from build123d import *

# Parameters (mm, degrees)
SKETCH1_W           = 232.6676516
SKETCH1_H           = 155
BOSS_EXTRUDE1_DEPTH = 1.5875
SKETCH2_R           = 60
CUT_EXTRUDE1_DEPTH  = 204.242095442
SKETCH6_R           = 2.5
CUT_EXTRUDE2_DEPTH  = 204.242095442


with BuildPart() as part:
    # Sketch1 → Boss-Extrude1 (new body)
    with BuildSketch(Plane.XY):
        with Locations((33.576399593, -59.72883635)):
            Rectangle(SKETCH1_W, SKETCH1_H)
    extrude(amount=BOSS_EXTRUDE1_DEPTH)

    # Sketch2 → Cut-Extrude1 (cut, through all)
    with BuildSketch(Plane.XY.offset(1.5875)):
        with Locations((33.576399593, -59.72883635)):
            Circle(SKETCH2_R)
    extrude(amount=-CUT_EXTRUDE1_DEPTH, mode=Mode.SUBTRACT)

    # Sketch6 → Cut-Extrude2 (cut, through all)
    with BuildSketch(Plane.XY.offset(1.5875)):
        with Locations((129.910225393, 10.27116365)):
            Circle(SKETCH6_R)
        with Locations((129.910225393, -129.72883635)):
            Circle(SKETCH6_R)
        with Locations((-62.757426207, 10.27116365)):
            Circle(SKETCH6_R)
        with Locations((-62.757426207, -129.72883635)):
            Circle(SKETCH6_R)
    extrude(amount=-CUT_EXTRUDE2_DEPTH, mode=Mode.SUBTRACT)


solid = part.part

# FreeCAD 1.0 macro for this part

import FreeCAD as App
import Part
import Sketcher
from FreeCAD import Vector

doc = App.newDocument("Part")
params = doc.addObject("Spreadsheet::Sheet", "Params")
for row, (alias, value) in enumerate([
    ("sketch1_height", "155 mm"),
    ("pad1_length", "1.5875 mm"),
    ("sketch2_diameter", "120 mm"),
    ("sketch3_diameter", "5 mm"),
], start=1):
    params.set(f"A{row}", alias)
    params.set(f"B{row}", "=" + value)
    params.setAlias(f"B{row}", alias)

body = doc.addObject("PartDesign::Body", "Body")

sketch1 = body.newObject("Sketcher::SketchObject", "Sketch")
sketch1.AttachmentSupport = (doc.getObject("XY_Plane"), [""])
sketch1.MapMode = "FlatFace"
sketch1.addGeometry(Part.LineSegment(Vector(-83, 18, 0), Vector(-83, -137, 0)), False)
sketch1.addGeometry(Part.LineSegment(Vector(-83, -137, 0), Vector(150, -137, 0)), False)
sketch1.addGeometry(Part.LineSegment(Vector(150, -137, 0), Vector(150, 18, 0)), False)
sketch1.addGeometry(Part.LineSegment(Vector(150, 18, 0), Vector(-83, 18, 0)), False)
sketch1.addConstraint(Sketcher.Constraint("Coincident", 0, 2, 1, 1))
sketch1.addConstraint(Sketcher.Constraint("Coincident", 1, 2, 2, 1))
sketch1.addConstraint(Sketcher.Constraint("Coincident", 2, 2, 3, 1))
sketch1.addConstraint(Sketcher.Constraint("Coincident", 3, 2, 0, 1))
sketch1.addConstraint(Sketcher.Constraint("Vertical", 0))
sketch1.addConstraint(Sketcher.Constraint("Horizontal", 1))
sketch1.addConstraint(Sketcher.Constraint("Vertical", 2))
sketch1.addConstraint(Sketcher.Constraint("Horizontal", 3))
sketch1.addConstraint(Sketcher.Constraint("DistanceY", 0, 2, 0, 1, 155.0))
sketch1.addConstraint(Sketcher.Constraint("DistanceX", 1, 1, 1, 2, 232.667652))
sketch1.addConstraint(Sketcher.Constraint("DistanceX", 0, 2, -1, 1, 82.757426))
sketch1.addConstraint(Sketcher.Constraint("DistanceY", 0, 2, -1, 1, 137.228836))
sketch1.setExpression("Constraints[8]", "Params.sketch1_height")
pad1 = body.newObject("PartDesign::Pad", "Pad")
pad1.Profile = sketch1
pad1.setExpression("Length", "Params.pad1_length")

sketch2 = body.newObject("Sketcher::SketchObject", "Sketch001")
sketch2.AttachmentSupport = (doc.getObject("XY_Plane"), [""])
sketch2.MapMode = "FlatFace"
sketch2.AttachmentOffset = App.Placement(Vector(0, 0, 1.5875), App.Rotation())
sketch2.addGeometry(Part.Circle(Vector(34, -60, 0), Vector(0, 0, 1), 60), False)
sketch2.addConstraint(Sketcher.Constraint("Diameter", 0, 120.0))
sketch2.addConstraint(Sketcher.Constraint("DistanceX", -1, 1, 0, 3, 33.5764))
sketch2.addConstraint(Sketcher.Constraint("DistanceY", 0, 3, -1, 1, 59.728836))
sketch2.setExpression("Constraints[0]", "Params.sketch2_diameter")
pocket1 = body.newObject("PartDesign::Pocket", "Pocket")
pocket1.Profile = sketch2
pocket1.Type = "ThroughAll"

sketch3 = body.newObject("Sketcher::SketchObject", "Sketch002")
sketch3.AttachmentSupport = (doc.getObject("XY_Plane"), [""])
sketch3.MapMode = "FlatFace"
sketch3.AttachmentOffset = App.Placement(Vector(0, 0, 1.5875), App.Rotation())
sketch3.addGeometry(Part.Circle(Vector(129.9, 10.3, 0), Vector(0, 0, 1), 2.5), False)
sketch3.addGeometry(Part.Circle(Vector(129.9, -129.7, 0), Vector(0, 0, 1), 2.5), False)
sketch3.addGeometry(Part.Circle(Vector(-62.8, 10.3, 0), Vector(0, 0, 1), 2.5), False)
sketch3.addGeometry(Part.Circle(Vector(-62.8, -129.7, 0), Vector(0, 0, 1), 2.5), False)
sketch3.addConstraint(Sketcher.Constraint("Equal", 0, 1))
sketch3.addConstraint(Sketcher.Constraint("Equal", 1, 2))
sketch3.addConstraint(Sketcher.Constraint("Equal", 2, 3))
sketch3.addConstraint(Sketcher.Constraint("Horizontal", 0, 3, 2, 3))
sketch3.addConstraint(Sketcher.Constraint("Horizontal", 1, 3, 3, 3))
sketch3.addConstraint(Sketcher.Constraint("Vertical", 0, 3, 1, 3))
sketch3.addConstraint(Sketcher.Constraint("Vertical", 2, 3, 3, 3))
sketch3.addConstraint(Sketcher.Constraint("Diameter", 0, 5.0))
sketch3.addConstraint(Sketcher.Constraint("DistanceY", 1, 3, 0, 3, 140.0))
sketch3.addConstraint(Sketcher.Constraint("DistanceX", 2, 3, 0, 3, 192.667652))
sketch3.addConstraint(Sketcher.Constraint("DistanceX", -1, 1, 0, 3, 129.910225))
sketch3.addConstraint(Sketcher.Constraint("DistanceY", -1, 1, 0, 3, 10.271164))
sketch3.setExpression("Constraints[7]", "Params.sketch3_diameter")
pocket2 = body.newObject("PartDesign::Pocket", "Pocket001")
pocket2.Profile = sketch3
pocket2.Type = "ThroughAll"

doc.recompute()
